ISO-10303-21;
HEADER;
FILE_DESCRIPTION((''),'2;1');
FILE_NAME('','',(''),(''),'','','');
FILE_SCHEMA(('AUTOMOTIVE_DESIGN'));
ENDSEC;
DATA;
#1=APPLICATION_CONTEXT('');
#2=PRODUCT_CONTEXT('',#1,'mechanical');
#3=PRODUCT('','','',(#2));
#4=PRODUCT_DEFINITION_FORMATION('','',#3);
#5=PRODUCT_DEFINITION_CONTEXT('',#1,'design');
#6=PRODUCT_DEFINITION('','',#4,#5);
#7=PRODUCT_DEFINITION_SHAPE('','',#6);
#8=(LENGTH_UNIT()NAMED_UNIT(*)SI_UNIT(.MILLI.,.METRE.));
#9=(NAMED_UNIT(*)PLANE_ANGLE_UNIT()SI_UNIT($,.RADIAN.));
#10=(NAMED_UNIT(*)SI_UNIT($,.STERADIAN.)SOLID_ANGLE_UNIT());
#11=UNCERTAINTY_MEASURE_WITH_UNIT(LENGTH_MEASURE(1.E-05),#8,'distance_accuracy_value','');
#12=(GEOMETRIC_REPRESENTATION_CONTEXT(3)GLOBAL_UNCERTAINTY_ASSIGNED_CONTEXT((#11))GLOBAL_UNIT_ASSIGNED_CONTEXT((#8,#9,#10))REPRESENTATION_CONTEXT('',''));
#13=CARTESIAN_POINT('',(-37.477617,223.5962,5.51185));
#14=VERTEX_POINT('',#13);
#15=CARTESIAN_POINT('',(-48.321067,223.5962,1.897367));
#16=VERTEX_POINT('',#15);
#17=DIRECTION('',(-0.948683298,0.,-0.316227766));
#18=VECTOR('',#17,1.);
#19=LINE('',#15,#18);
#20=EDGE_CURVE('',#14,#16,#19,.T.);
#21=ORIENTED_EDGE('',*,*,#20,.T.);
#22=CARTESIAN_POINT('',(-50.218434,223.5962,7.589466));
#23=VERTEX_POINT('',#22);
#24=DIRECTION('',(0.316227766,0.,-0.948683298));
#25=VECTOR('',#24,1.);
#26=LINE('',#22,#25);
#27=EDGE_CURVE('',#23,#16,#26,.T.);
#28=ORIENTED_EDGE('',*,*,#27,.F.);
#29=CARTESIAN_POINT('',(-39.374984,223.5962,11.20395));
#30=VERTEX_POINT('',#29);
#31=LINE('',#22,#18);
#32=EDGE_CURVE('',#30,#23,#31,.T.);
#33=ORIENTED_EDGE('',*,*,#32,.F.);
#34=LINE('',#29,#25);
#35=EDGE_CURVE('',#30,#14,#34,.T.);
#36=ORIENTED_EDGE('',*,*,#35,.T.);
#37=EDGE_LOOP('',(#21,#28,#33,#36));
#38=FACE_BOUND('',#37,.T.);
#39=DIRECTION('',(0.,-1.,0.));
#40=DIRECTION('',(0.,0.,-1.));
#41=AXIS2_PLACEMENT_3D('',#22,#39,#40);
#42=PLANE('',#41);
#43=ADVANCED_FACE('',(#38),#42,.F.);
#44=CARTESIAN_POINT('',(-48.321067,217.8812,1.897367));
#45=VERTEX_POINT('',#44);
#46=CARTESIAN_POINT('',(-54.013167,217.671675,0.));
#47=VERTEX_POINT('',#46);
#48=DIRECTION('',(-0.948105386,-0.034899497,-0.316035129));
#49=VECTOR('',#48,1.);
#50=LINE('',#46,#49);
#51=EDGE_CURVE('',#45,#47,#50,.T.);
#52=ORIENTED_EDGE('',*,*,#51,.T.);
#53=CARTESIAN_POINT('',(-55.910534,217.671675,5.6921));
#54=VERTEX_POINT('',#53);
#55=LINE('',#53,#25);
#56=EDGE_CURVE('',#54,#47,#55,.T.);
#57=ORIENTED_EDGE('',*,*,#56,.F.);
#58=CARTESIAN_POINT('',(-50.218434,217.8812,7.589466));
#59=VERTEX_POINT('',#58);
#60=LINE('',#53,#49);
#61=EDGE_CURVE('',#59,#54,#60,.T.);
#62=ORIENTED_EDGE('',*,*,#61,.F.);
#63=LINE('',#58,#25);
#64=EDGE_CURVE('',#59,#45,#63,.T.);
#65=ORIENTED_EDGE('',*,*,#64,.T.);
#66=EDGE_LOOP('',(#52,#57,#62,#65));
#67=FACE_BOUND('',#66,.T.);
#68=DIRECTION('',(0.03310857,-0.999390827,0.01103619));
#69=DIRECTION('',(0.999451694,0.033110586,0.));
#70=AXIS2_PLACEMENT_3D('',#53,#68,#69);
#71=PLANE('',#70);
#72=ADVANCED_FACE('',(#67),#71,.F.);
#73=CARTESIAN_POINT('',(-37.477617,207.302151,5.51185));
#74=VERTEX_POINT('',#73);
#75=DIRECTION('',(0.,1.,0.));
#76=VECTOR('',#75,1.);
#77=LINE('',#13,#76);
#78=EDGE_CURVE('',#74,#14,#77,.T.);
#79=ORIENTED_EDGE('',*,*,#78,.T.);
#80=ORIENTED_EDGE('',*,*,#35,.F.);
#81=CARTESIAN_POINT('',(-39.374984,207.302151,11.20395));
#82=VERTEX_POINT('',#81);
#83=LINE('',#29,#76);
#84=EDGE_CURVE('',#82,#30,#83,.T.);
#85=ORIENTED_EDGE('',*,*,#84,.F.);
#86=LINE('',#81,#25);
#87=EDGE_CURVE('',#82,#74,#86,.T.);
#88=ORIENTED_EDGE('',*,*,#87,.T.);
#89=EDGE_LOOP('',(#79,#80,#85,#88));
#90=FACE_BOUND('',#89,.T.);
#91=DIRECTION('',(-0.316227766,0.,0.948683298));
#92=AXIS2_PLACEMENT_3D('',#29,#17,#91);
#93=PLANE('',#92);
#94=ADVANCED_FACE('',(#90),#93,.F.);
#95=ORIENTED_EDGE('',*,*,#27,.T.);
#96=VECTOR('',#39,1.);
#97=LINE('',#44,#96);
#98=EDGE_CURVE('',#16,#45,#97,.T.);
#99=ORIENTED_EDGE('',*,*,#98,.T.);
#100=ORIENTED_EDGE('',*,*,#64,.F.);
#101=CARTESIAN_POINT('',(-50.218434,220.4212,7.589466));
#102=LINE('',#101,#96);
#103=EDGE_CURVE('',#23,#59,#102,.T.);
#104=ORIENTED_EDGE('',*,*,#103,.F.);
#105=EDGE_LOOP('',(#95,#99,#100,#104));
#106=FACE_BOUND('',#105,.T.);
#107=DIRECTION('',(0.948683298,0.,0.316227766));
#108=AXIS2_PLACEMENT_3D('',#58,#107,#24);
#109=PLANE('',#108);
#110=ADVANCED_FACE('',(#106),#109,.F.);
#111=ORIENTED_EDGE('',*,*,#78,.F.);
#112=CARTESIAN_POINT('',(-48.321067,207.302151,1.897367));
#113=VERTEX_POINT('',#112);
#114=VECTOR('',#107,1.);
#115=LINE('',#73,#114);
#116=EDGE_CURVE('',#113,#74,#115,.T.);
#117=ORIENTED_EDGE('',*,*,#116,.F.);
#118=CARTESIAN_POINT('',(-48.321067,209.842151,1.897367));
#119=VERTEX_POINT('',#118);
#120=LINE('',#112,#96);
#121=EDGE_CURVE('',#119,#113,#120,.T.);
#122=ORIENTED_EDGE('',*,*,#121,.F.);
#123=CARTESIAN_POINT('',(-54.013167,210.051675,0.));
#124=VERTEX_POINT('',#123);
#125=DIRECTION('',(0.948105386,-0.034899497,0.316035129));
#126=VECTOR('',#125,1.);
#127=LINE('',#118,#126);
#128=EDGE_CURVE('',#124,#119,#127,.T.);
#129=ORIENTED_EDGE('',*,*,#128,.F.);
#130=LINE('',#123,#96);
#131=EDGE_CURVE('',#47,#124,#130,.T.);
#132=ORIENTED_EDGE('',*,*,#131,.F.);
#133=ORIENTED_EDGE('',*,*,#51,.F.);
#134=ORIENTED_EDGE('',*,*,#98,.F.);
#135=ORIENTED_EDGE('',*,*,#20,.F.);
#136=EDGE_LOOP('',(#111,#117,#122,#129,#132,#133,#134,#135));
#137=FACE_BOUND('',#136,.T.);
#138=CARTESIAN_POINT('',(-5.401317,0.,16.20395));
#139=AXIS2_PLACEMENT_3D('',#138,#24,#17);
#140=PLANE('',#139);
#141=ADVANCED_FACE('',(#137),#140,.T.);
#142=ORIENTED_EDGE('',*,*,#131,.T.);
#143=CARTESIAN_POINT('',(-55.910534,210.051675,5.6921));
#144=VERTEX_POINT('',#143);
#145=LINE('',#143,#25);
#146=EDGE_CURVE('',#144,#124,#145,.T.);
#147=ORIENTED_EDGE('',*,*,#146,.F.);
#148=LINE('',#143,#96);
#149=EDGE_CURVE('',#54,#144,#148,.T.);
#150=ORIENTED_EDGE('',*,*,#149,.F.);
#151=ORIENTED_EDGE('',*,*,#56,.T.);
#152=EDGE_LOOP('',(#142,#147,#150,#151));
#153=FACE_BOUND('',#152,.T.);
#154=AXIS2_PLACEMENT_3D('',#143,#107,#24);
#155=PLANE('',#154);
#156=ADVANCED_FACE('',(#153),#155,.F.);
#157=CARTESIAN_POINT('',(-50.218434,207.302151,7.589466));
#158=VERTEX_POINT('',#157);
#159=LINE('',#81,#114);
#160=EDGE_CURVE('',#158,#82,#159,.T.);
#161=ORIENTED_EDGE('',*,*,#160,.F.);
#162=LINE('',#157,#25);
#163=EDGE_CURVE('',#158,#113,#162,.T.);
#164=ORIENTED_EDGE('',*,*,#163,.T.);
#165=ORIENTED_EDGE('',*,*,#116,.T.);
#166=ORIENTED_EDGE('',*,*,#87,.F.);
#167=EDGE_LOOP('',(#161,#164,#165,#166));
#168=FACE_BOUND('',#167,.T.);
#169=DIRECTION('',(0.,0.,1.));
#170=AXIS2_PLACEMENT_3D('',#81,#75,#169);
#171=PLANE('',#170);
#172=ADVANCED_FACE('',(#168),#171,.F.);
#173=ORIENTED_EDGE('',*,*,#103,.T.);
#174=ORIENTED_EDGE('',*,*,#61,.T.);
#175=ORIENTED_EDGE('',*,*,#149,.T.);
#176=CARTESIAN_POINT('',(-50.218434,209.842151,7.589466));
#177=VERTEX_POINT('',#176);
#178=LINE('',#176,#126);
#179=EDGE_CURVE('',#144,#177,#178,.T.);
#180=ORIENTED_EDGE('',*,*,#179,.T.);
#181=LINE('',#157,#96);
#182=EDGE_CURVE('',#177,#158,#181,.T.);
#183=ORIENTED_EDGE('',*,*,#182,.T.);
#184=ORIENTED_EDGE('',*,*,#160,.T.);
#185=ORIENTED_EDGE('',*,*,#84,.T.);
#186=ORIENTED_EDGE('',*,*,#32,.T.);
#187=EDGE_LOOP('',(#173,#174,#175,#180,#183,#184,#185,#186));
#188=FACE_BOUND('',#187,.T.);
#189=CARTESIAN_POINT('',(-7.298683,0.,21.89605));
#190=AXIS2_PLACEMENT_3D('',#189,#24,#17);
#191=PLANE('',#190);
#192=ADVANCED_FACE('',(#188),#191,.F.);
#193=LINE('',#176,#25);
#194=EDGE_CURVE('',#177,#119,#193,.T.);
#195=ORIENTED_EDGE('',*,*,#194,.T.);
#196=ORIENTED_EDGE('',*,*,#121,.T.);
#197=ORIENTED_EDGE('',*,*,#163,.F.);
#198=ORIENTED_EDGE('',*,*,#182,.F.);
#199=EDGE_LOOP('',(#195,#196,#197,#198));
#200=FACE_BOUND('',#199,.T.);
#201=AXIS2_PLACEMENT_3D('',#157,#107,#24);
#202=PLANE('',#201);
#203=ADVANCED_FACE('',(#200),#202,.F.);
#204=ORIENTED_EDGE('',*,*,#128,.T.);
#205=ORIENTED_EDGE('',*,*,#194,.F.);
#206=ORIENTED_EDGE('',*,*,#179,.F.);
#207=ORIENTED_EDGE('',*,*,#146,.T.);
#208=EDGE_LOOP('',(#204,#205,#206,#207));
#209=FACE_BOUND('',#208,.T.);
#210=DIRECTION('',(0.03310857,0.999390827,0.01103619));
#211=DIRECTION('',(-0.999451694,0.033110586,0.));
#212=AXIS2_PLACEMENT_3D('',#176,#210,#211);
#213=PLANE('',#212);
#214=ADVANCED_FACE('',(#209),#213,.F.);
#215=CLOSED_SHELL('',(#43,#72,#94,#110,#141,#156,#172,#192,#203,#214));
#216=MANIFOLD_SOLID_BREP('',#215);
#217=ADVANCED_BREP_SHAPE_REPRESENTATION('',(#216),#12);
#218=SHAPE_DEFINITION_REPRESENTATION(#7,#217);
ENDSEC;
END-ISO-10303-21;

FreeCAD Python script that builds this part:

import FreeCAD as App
import Part
import Sketcher
Q = App.Units.Quantity

doc = App.newDocument("Part")
params = doc.addObject("Spreadsheet::Sheet", "Params")
for row, (alias, value) in enumerate([
    ("sketch1_height", "0.3 in"),
    ("sketch1_height2", "0.1 in"),
    ("sketch1_width", "0.45 in"),
    ("sketch1_height3", "0.225 in"),
    ("pad1_length", "6 mm"),
], start=1):
    params.set(f"A{row}", alias)
    params.set(f"B{row}", "=" + value)
    params.setAlias(f"B{row}", alias)

body = doc.addObject("PartDesign::Body", "Body")

# Sketch on an angled plane
sketch1 = body.newObject("Sketcher::SketchObject", "Sketch")
sketch1.Placement = App.Placement(App.Vector(-6.35, 0, 19.05), App.Rotation(App.Vector(0.948683298, 0, 0.316227766), App.Vector(0, 1, 0), App.Vector(-0.316227766, 0, 0.948683298), "ZXY"))
sketch1.addGeometry([
    Part.LineSegment(App.Vector(-33.811389, 223.5962, 0), App.Vector(-45.241389, 223.5962, 0)),  # 0
    Part.LineSegment(App.Vector(-45.241389, 223.5962, 0), App.Vector(-45.241389, 217.8812, 0)),  # 1
    Part.LineSegment(App.Vector(-45.241389, 217.8812, 0), App.Vector(-51.241389, 217.671675, 0)),  # 2
    Part.LineSegment(App.Vector(-51.241389, 217.671675, 0), App.Vector(-51.241389, 210.051675, 0)),  # 3
    Part.LineSegment(App.Vector(-51.241389, 210.051675, 0), App.Vector(-45.241389, 209.842151, 0)),  # 4
    Part.LineSegment(App.Vector(-45.241389, 209.842151, 0), App.Vector(-45.241389, 207.302151, 0)),  # 5
    Part.LineSegment(App.Vector(-45.241389, 207.302151, 0), App.Vector(-33.811389, 207.302151, 0)),  # 6
    Part.LineSegment(App.Vector(-33.811389, 207.302151, 0), App.Vector(-33.811389, 223.5962, 0)),  # 7
], False)
sketch1.addConstraint([
    Sketcher.Constraint("Coincident", 0, 2, 1, 1),
    Sketcher.Constraint("Coincident", 1, 2, 2, 1),
    Sketcher.Constraint("Coincident", 2, 2, 3, 1),
    Sketcher.Constraint("Coincident", 3, 2, 4, 1),
    Sketcher.Constraint("Coincident", 4, 2, 5, 1),
    Sketcher.Constraint("Coincident", 5, 2, 6, 1),
    Sketcher.Constraint("Coincident", 6, 2, 7, 1),
    Sketcher.Constraint("Coincident", 7, 2, 0, 1),
    Sketcher.Constraint("Horizontal", 0),
    Sketcher.Constraint("Vertical", 1),
    Sketcher.Constraint("Vertical", 3),
    Sketcher.Constraint("Vertical", 5),
    Sketcher.Constraint("Horizontal", 6),
    Sketcher.Constraint("Vertical", 7),
    Sketcher.Constraint("Vertical", 1, 2, 4, 2),
    Sketcher.Constraint("Equal", 2, 4),
    Sketcher.Constraint("DistanceY", 3, 2, 3, 1, Q("0.3 in")),
    Sketcher.Constraint("DistanceY", 5, 2, 5, 1, Q("0.1 in")),
    Sketcher.Constraint("Angle", 2, Q("-178 deg")),
    Sketcher.Constraint("DistanceX", 0, 2, 0, 1, Q("0.45 in")),
    Sketcher.Constraint("DistanceY", 1, 2, 1, 1, Q("0.225 in")),
    Sketcher.Constraint("DistanceY", -1, 1, 0, 2, Q("8.803 in")),
    Sketcher.Constraint("DistanceY", 7, 1, 7, 2, 16.294049),
    Sketcher.Constraint("DistanceX", 0, 2, -1, 1, 45.241389),
])
sketch1.setExpression("Constraints[16]", "Params.sketch1_height")
sketch1.setExpression("Constraints[17]", "Params.sketch1_height2")
sketch1.setExpression("Constraints[19]", "Params.sketch1_width")
sketch1.setExpression("Constraints[20]", "Params.sketch1_height3")
pad1 = body.newObject("PartDesign::Pad", "Pad")
pad1.Profile = sketch1
pad1.setExpression("Length", "Params.pad1_length")
pad1.Midplane = True

doc.recompute()
